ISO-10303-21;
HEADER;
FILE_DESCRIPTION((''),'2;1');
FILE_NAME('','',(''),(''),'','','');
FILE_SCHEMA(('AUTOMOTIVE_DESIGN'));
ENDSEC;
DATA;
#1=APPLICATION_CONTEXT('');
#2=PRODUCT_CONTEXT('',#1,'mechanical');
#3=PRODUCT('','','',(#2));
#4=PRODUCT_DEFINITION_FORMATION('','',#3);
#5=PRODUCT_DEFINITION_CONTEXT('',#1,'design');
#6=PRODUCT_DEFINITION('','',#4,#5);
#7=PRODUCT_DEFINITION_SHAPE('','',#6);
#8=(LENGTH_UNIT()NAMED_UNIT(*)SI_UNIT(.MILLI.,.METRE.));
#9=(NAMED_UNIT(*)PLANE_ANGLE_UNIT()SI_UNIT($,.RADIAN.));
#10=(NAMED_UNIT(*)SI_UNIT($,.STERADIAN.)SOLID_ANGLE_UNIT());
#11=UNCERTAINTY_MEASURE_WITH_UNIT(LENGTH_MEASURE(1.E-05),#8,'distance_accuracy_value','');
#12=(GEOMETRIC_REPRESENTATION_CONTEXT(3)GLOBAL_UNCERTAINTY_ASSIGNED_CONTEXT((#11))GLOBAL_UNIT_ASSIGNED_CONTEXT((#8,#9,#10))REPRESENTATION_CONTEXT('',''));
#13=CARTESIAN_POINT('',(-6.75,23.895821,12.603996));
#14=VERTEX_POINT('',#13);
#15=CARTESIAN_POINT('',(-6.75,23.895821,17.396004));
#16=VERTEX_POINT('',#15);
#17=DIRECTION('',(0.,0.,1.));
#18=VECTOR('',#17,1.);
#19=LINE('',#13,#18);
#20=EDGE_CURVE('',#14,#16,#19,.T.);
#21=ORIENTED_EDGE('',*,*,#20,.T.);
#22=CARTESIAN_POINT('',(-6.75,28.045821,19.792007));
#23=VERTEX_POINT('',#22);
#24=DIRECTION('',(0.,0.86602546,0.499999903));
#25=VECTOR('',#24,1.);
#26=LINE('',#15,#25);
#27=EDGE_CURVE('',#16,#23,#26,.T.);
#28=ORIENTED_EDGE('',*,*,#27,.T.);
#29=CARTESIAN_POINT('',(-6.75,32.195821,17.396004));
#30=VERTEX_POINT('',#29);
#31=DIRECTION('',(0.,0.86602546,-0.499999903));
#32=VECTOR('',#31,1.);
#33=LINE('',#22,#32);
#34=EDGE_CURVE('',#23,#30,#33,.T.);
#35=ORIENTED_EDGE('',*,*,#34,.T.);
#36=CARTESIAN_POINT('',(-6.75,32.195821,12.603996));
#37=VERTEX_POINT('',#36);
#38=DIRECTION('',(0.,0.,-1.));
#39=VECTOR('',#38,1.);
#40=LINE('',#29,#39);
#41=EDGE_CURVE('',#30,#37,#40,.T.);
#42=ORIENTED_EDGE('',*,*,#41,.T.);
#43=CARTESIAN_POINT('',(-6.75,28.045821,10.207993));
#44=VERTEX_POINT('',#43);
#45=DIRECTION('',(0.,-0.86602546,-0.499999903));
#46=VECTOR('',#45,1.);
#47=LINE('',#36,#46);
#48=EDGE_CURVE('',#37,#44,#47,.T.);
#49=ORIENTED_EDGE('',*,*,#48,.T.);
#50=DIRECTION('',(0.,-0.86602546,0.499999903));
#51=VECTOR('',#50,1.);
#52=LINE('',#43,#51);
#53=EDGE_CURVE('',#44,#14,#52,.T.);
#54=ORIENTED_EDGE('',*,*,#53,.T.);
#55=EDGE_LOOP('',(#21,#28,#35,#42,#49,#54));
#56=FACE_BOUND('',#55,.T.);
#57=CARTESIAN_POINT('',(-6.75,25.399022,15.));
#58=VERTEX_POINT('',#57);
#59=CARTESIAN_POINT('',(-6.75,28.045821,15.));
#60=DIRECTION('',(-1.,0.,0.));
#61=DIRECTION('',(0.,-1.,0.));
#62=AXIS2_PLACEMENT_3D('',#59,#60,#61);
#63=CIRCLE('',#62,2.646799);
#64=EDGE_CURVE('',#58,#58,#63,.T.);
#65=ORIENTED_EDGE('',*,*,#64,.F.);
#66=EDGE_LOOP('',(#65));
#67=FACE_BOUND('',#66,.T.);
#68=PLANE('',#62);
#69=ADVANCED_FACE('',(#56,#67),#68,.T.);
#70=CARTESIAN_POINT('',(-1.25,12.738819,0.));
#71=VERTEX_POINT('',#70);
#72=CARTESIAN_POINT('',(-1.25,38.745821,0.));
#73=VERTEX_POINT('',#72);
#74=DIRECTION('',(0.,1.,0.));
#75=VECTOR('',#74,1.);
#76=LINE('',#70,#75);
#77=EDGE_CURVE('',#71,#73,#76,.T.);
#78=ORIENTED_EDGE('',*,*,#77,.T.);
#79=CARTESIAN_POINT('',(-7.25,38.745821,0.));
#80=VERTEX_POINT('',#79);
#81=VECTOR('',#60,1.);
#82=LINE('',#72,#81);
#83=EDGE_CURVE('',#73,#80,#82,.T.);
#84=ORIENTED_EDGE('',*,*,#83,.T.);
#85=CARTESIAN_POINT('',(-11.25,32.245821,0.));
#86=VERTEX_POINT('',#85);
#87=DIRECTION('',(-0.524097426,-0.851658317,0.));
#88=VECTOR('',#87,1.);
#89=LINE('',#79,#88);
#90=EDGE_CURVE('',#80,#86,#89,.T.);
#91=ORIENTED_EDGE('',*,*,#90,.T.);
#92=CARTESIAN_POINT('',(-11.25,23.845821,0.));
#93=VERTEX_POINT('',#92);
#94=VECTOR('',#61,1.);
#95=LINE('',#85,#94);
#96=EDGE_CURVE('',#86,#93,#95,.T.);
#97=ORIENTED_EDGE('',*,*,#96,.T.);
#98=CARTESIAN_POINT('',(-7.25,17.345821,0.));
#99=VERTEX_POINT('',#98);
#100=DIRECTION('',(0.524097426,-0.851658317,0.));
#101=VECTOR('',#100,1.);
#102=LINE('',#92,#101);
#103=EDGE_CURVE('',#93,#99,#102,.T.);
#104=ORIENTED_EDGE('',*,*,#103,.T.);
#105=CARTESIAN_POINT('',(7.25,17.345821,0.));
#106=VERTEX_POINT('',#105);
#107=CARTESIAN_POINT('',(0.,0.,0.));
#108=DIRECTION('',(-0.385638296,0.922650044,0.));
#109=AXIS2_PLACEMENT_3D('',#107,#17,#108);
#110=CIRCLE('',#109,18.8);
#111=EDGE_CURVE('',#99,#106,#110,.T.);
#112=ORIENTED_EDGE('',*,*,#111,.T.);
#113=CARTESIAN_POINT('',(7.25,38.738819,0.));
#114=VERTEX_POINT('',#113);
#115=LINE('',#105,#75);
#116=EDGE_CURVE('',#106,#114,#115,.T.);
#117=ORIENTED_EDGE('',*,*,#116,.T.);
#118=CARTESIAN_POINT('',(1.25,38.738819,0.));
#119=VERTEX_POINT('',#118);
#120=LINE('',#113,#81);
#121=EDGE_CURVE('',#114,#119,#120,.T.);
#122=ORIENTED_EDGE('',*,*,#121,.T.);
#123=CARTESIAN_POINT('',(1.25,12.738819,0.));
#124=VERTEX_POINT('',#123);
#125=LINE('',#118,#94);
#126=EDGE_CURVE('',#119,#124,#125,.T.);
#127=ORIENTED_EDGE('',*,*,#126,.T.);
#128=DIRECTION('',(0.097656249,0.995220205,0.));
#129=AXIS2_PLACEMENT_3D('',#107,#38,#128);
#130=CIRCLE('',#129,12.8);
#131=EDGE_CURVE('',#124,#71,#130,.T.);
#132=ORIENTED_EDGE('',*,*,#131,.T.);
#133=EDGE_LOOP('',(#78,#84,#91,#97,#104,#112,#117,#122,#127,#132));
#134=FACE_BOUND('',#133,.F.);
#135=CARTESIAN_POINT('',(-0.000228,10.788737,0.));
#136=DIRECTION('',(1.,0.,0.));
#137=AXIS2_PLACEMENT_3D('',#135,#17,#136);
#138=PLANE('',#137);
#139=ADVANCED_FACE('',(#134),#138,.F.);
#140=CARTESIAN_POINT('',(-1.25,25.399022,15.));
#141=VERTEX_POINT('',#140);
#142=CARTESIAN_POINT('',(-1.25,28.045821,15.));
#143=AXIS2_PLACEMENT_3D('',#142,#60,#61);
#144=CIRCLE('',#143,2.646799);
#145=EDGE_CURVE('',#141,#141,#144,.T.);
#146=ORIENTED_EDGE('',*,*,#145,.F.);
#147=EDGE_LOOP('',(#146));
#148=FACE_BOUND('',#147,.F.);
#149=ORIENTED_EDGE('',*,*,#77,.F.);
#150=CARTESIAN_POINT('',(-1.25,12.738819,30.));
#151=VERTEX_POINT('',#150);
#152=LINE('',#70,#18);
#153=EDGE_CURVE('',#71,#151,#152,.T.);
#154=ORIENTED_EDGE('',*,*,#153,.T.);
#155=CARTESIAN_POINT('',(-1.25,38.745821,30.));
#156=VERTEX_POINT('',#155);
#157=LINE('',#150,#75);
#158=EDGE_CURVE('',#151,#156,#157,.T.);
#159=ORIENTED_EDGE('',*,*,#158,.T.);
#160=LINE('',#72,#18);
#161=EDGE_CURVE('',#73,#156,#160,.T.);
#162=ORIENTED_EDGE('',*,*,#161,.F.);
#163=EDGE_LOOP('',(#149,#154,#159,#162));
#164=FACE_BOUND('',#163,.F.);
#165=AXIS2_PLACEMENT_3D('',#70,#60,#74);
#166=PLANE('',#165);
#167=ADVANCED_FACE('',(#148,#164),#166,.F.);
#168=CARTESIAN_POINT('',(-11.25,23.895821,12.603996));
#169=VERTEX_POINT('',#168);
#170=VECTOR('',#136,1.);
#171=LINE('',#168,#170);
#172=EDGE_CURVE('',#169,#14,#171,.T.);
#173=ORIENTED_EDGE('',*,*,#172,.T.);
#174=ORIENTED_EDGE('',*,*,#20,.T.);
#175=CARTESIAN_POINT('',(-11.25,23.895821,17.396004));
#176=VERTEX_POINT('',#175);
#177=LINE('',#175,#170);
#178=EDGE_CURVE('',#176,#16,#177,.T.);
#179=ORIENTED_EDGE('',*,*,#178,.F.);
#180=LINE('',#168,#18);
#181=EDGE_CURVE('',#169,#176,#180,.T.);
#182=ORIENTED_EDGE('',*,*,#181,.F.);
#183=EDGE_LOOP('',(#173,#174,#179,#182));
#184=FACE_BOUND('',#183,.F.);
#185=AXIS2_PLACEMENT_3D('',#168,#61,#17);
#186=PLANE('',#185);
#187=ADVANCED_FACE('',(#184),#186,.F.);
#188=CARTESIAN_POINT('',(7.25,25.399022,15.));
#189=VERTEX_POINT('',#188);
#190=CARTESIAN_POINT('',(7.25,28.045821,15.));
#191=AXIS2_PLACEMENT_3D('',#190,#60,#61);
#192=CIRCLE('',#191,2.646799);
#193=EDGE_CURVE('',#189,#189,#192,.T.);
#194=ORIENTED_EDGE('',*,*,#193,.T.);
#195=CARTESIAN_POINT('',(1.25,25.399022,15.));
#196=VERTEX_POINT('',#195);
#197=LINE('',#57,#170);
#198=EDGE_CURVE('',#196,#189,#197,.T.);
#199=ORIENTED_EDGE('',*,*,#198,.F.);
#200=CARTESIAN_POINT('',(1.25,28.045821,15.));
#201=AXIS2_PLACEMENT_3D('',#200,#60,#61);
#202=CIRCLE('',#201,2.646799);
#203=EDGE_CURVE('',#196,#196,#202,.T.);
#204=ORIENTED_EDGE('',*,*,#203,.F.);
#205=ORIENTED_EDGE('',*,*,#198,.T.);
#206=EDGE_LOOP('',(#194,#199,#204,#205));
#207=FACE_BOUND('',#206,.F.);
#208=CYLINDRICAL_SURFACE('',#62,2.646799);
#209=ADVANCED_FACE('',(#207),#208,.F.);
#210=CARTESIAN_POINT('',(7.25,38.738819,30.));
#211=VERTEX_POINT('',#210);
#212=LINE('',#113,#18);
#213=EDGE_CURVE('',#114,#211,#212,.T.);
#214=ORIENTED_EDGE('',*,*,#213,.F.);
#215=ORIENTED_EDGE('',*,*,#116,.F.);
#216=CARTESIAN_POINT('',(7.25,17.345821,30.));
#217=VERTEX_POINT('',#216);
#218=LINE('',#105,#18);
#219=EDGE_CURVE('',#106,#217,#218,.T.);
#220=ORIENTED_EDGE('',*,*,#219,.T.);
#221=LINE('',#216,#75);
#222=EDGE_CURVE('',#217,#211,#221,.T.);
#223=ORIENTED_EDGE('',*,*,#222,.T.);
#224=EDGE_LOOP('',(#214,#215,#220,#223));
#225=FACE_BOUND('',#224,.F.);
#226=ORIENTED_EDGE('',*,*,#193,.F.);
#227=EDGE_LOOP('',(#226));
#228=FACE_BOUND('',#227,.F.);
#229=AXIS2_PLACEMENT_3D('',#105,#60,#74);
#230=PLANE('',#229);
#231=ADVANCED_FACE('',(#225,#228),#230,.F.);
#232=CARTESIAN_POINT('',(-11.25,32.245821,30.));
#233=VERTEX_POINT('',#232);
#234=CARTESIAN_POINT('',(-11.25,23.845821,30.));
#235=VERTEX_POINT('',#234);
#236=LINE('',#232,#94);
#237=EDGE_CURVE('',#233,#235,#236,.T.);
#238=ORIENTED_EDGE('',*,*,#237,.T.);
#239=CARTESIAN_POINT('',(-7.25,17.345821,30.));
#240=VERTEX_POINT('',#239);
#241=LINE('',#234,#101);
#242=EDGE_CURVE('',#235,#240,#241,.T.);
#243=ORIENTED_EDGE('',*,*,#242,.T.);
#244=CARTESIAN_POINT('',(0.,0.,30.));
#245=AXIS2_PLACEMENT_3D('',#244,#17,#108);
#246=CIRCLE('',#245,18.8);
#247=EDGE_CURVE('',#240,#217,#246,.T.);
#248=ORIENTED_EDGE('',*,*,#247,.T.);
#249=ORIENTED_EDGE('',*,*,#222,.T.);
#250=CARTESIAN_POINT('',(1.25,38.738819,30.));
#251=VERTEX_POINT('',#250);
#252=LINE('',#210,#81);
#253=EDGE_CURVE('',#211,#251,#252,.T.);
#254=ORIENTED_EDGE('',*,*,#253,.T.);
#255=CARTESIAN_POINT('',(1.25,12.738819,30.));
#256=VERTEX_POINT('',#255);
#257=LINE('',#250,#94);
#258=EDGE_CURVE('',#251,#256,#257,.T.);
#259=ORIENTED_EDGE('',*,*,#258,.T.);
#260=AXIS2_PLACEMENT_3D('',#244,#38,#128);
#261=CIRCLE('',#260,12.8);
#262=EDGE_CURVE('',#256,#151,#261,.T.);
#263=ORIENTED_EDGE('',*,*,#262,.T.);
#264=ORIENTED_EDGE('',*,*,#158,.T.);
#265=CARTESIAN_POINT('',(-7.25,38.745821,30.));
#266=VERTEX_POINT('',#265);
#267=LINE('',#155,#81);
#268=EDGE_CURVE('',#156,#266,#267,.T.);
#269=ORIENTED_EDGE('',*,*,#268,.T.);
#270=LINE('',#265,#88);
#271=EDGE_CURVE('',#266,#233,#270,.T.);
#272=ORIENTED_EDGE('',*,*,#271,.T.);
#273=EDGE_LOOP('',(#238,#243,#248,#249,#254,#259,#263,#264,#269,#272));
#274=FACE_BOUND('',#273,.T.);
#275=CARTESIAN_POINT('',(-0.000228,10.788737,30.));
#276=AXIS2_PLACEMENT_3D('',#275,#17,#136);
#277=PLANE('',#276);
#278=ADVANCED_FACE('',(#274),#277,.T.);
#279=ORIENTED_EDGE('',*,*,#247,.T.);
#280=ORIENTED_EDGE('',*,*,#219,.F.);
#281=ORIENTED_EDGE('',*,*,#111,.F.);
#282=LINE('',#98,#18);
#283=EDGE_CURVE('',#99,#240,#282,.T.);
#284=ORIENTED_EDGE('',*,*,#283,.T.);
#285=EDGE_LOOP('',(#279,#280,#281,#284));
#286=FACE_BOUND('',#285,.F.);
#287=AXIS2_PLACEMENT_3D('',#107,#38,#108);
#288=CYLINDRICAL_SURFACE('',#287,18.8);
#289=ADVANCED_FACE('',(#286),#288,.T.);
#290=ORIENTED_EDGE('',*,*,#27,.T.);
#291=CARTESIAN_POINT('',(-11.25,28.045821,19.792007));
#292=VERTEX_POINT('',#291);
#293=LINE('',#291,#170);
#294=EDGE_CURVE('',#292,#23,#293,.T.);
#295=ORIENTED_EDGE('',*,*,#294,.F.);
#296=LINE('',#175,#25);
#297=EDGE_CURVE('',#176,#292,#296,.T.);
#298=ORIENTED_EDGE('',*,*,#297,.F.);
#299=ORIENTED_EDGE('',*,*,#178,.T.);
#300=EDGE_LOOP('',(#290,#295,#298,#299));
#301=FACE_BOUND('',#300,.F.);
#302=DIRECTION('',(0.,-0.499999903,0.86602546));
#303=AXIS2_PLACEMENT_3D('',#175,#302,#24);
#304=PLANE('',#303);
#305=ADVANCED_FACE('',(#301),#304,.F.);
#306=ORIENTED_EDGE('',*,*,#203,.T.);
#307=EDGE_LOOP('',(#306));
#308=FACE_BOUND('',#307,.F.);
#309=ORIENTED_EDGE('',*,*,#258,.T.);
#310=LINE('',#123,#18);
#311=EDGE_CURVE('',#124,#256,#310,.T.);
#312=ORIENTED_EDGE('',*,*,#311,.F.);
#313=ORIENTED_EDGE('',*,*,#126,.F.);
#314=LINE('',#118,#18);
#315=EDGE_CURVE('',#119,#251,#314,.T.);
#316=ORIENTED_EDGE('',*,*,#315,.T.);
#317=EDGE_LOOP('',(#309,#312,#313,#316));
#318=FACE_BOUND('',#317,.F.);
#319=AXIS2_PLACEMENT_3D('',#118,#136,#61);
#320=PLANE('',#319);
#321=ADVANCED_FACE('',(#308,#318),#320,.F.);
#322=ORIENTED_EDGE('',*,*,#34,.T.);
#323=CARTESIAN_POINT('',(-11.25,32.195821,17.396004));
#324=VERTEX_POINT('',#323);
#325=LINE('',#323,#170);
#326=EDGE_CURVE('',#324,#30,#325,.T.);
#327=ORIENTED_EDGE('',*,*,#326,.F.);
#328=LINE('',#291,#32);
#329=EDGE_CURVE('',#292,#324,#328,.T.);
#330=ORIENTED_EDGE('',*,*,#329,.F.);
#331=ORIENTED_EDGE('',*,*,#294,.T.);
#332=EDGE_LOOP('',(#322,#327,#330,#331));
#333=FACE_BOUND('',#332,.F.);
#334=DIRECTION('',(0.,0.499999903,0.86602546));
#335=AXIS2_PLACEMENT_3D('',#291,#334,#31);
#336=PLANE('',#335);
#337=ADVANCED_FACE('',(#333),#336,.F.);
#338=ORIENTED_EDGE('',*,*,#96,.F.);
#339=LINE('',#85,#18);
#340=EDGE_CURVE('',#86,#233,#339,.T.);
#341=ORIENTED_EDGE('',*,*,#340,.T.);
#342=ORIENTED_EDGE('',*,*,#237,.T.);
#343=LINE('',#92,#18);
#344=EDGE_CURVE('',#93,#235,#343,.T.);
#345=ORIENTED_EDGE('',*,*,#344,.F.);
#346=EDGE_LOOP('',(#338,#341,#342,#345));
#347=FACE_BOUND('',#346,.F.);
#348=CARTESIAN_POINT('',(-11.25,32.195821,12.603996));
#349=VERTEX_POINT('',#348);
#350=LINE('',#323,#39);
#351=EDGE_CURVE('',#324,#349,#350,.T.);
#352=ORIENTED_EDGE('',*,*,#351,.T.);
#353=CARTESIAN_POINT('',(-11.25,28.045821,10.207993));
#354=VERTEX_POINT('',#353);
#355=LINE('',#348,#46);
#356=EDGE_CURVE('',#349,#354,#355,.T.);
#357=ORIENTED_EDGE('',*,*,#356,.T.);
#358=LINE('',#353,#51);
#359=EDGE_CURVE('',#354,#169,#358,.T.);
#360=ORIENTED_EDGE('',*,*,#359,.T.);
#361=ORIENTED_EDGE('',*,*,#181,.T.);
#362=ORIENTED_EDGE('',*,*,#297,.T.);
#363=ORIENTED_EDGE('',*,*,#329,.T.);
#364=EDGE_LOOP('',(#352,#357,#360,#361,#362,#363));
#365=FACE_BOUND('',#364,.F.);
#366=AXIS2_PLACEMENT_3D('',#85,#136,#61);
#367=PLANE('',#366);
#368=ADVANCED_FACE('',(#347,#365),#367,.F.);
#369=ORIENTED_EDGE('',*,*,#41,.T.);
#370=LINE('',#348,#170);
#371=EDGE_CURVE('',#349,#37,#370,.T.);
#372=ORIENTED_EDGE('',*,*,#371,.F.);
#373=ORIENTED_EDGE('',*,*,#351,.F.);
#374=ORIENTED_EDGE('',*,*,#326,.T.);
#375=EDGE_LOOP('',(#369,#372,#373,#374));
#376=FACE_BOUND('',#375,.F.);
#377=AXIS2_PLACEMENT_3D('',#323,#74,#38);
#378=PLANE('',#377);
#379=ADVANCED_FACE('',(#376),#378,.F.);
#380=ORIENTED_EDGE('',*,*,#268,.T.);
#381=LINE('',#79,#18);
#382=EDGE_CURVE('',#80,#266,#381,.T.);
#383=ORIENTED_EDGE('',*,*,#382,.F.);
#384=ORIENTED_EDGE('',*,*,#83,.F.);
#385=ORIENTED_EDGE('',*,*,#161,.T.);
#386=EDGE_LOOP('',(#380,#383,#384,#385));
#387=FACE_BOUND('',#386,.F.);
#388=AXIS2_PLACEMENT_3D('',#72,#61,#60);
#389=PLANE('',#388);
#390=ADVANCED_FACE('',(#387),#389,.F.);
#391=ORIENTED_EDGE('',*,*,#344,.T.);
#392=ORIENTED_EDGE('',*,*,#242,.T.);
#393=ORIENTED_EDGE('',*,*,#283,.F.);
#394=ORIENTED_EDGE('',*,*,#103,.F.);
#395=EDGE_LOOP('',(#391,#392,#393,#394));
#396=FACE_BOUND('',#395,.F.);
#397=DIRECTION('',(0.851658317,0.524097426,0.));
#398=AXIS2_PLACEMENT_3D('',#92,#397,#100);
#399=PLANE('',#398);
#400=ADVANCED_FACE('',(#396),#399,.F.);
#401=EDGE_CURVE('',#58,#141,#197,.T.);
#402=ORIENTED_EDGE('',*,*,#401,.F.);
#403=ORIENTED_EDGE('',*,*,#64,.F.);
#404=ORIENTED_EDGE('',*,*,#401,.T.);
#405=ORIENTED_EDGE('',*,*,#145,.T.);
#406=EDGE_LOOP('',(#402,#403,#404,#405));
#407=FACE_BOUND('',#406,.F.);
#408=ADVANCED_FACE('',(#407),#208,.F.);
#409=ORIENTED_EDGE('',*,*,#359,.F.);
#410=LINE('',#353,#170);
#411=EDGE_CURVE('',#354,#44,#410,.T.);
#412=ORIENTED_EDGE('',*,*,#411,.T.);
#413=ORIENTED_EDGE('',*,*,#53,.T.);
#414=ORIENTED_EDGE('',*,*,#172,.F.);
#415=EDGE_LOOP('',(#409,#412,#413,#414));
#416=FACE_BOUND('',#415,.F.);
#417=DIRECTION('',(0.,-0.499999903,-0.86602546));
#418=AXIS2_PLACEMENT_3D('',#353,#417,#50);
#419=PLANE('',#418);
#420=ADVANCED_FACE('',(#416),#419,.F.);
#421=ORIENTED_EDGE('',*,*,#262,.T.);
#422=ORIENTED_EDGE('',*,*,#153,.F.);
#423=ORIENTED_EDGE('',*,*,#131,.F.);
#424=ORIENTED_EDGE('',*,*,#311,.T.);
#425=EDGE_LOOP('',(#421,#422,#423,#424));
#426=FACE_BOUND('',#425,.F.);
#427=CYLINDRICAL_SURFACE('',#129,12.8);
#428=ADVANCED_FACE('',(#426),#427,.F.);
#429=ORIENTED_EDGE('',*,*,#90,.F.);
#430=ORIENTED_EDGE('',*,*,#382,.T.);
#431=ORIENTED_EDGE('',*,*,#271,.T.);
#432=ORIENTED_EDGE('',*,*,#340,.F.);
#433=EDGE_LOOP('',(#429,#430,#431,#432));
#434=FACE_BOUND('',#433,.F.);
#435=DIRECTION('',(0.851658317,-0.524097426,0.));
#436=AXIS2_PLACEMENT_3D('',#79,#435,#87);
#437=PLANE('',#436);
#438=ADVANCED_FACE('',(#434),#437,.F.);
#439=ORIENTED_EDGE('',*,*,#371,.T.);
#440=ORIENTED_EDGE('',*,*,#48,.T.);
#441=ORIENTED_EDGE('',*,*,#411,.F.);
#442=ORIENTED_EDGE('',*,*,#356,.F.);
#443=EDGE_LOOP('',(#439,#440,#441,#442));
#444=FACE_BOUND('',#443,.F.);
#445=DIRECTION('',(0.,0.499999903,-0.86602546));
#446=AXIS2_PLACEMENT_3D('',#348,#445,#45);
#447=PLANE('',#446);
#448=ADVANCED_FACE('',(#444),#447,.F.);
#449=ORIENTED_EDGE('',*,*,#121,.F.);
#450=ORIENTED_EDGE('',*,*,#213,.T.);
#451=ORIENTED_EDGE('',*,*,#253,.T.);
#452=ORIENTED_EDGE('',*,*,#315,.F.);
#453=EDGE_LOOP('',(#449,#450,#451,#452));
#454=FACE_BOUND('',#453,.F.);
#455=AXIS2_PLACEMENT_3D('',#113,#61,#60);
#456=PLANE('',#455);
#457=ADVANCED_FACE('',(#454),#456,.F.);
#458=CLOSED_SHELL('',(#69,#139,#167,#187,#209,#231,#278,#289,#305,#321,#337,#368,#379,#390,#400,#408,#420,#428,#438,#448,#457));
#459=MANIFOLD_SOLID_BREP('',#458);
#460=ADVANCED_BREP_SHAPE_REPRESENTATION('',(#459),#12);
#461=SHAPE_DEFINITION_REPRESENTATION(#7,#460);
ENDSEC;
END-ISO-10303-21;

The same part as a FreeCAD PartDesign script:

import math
import FreeCAD as App
import Part
import Sketcher
Q = App.Units.Quantity

doc = App.newDocument("Part")
body = doc.addObject("PartDesign::Body", "Body")

# Sketch on XY plane
sketch1 = body.newObject("Sketcher::SketchObject", "Sketch")
sketch1.AttachmentSupport = (doc.getObject("XY_Plane"), [""])
sketch1.MapMode = "FlatFace"
sketch1.addGeometry([
    Part.ArcOfCircle(Part.Circle(App.Vector(0, 0, 0), App.Vector(0, 0, 1), 12.8), math.radians(95.604223), math.radians(444.395777)),  # 0
    Part.LineSegment(App.Vector(-1.25, 12.738819, 0), App.Vector(-1.25, 38.745821, 0)),  # 1
    Part.LineSegment(App.Vector(-1.25, 38.745821, 0), App.Vector(-7.25, 38.745821, 0)),  # 2
    Part.LineSegment(App.Vector(-7.25, 38.745821, 0), App.Vector(-11.25, 32.245821, 0)),  # 3
    Part.LineSegment(App.Vector(-11.25, 32.245821, 0), App.Vector(-11.25, 23.845821, 0)),  # 4
    Part.LineSegment(App.Vector(-11.25, 23.845821, 0), App.Vector(-7.25, 17.345821, 0)),  # 5
    Part.ArcOfCircle(Part.Circle(App.Vector(0, 0, 0), App.Vector(0, 0, 1), 18.8), math.radians(112.683372), math.radians(427.316628)),  # 6
    Part.LineSegment(App.Vector(7.25, 17.345821, 0), App.Vector(7.25, 38.738819, 0)),  # 7
    Part.LineSegment(App.Vector(7.25, 38.738819, 0), App.Vector(1.25, 38.738819, 0)),  # 8
    Part.LineSegment(App.Vector(1.25, 38.738819, 0), App.Vector(1.25, 12.738819, 0)),  # 9
], False)
sketch1.addConstraint([
    Sketcher.Constraint("Coincident", 0, 1, 1, 1),
    Sketcher.Constraint("Coincident", 1, 2, 2, 1),
    Sketcher.Constraint("Coincident", 2, 2, 3, 1),
    Sketcher.Constraint("Coincident", 3, 2, 4, 1),
    Sketcher.Constraint("Coincident", 4, 2, 5, 1),
    Sketcher.Constraint("Coincident", 5, 2, 6, 1),
    Sketcher.Constraint("Coincident", 6, 2, 7, 1),
    Sketcher.Constraint("Coincident", 7, 2, 8, 1),
    Sketcher.Constraint("Coincident", 8, 2, 9, 1),
    Sketcher.Constraint("Coincident", 9, 2, 0, 2),
    Sketcher.Constraint("Vertical", 1),
    Sketcher.Constraint("Horizontal", 2),
    Sketcher.Constraint("Vertical", 4),
    Sketcher.Constraint("Vertical", 7),
    Sketcher.Constraint("Horizontal", 8),
    Sketcher.Constraint("Vertical", 9),
    Sketcher.Constraint("Coincident", 0, 3, -1, 1),
    Sketcher.Constraint("Coincident", 6, 3, -1, 1),
    Sketcher.Constraint("Horizontal", 5, 2, 6, 2),
    Sketcher.Constraint("Horizontal", 0, 1, 9, 2),
    Sketcher.Constraint("Vertical", 2, 2, 5, 2),
    Sketcher.Constraint("Equal", 3, 5),
    Sketcher.Constraint("Radius", 0, 12.8),
    Sketcher.Constraint("Radius", 6, 18.8),
    Sketcher.Constraint("DistanceX", 2, 2, 2, 1, 6.0),
    Sketcher.Constraint("DistanceY", 9, 2, 9, 1, 26.0),
    Sketcher.Constraint("DistanceY", 4, 2, 4, 1, 8.4),
    Sketcher.Constraint("DistanceX", 3, 2, 2, 2, 4.0),
    Sketcher.Constraint("DistanceY", 3, 2, 2, 2, 6.5),
    Sketcher.Constraint("DistanceX", 0, 1, 6, 2, 8.5),
])
pad1 = body.newObject("PartDesign::Pad", "Pad")
pad1.Profile = sketch1
pad1.Length = 30

# Sketch on YZ plane
sketch2 = body.newObject("Sketcher::SketchObject", "Sketch001")
sketch2.AttachmentSupport = (doc.getObject("YZ_Plane"), [""])
sketch2.MapMode = "FlatFace"
sketch2.AttachmentOffset = App.Placement(App.Vector(0, 0, -11.25), App.Rotation())
sketch2.addGeometry([
    Part.LineSegment(App.Vector(32.195821, 17.396004, 0), App.Vector(32.195821, 12.603996, 0)),  # 0
    Part.LineSegment(App.Vector(32.195821, 12.603996, 0), App.Vector(28.045821, 10.207993, 0)),  # 1
    Part.LineSegment(App.Vector(28.045821, 10.207993, 0), App.Vector(23.895821, 12.603996, 0)),  # 2
    Part.LineSegment(App.Vector(23.895821, 12.603996, 0), App.Vector(23.895821, 17.396004, 0)),  # 3
    Part.LineSegment(App.Vector(23.895821, 17.396004, 0), App.Vector(28.045821, 19.792007, 0)),  # 4
    Part.LineSegment(App.Vector(28.045821, 19.792007, 0), App.Vector(32.195821, 17.396004, 0)),  # 5
], False)
sketch2.addConstraint([
    Sketcher.Constraint("Coincident", 0, 2, 1, 1),
    Sketcher.Constraint("Coincident", 1, 2, 2, 1),
    Sketcher.Constraint("Coincident", 2, 2, 3, 1),
    Sketcher.Constraint("Coincident", 3, 2, 4, 1),
    Sketcher.Constraint("Coincident", 4, 2, 5, 1),
    Sketcher.Constraint("Coincident", 5, 2, 0, 1),
    Sketcher.Constraint("Vertical", 0),
    Sketcher.Constraint("Vertical", 3),
    Sketcher.Constraint("Parallel", 1, 4),
    Sketcher.Constraint("Parallel", 2, 5),
    Sketcher.Constraint("Horizontal", 0, 2, 2, 2),
    Sketcher.Constraint("Horizontal", 3, 2, 5, 2),
    Sketcher.Constraint("Vertical", 1, 2, 4, 2),
    Sketcher.Constraint("Angle", 1, Q("-150.000006 deg")),
    Sketcher.Constraint("DistanceX", 2, 2, 0, 2, 8.3),
    Sketcher.Constraint("DistanceY", 0, 2, 0, 1, 4.792008),
    Sketcher.Constraint("DistanceX", -1, 1, 0, 2, 32.195821),
    Sketcher.Constraint("DistanceY", -1, 1, 0, 2, 12.603996),
])
pocket1 = body.newObject("PartDesign::Pocket", "Pocket")
pocket1.Profile = sketch2
pocket1.Length = 4.5
pocket1.Reversed = True

# Sketch on YZ plane
sketch3 = body.newObject("Sketcher::SketchObject", "Sketch002")
sketch3.AttachmentSupport = (doc.getObject("YZ_Plane"), [""])
sketch3.MapMode = "FlatFace"
sketch3.AttachmentOffset = App.Placement(App.Vector(0, 0, -6.75), App.Rotation())
sketch3.addGeometry(Part.Circle(App.Vector(28.045821, 15, 0), App.Vector(0, 0, 1), 2.646799), False)
sketch3.addConstraint([
    Sketcher.Constraint("DistanceY", -1, 1, 0, 3, 15.0),
    Sketcher.Constraint("Diameter", 0, 5.293598),
    Sketcher.Constraint("DistanceX", -1, 1, 0, 3, 28.045821),
])
pocket2 = body.newObject("PartDesign::Pocket", "Pocket001")
pocket2.Profile = sketch3
pocket2.Type = "ThroughAll"
pocket2.Reversed = True

doc.recompute()
